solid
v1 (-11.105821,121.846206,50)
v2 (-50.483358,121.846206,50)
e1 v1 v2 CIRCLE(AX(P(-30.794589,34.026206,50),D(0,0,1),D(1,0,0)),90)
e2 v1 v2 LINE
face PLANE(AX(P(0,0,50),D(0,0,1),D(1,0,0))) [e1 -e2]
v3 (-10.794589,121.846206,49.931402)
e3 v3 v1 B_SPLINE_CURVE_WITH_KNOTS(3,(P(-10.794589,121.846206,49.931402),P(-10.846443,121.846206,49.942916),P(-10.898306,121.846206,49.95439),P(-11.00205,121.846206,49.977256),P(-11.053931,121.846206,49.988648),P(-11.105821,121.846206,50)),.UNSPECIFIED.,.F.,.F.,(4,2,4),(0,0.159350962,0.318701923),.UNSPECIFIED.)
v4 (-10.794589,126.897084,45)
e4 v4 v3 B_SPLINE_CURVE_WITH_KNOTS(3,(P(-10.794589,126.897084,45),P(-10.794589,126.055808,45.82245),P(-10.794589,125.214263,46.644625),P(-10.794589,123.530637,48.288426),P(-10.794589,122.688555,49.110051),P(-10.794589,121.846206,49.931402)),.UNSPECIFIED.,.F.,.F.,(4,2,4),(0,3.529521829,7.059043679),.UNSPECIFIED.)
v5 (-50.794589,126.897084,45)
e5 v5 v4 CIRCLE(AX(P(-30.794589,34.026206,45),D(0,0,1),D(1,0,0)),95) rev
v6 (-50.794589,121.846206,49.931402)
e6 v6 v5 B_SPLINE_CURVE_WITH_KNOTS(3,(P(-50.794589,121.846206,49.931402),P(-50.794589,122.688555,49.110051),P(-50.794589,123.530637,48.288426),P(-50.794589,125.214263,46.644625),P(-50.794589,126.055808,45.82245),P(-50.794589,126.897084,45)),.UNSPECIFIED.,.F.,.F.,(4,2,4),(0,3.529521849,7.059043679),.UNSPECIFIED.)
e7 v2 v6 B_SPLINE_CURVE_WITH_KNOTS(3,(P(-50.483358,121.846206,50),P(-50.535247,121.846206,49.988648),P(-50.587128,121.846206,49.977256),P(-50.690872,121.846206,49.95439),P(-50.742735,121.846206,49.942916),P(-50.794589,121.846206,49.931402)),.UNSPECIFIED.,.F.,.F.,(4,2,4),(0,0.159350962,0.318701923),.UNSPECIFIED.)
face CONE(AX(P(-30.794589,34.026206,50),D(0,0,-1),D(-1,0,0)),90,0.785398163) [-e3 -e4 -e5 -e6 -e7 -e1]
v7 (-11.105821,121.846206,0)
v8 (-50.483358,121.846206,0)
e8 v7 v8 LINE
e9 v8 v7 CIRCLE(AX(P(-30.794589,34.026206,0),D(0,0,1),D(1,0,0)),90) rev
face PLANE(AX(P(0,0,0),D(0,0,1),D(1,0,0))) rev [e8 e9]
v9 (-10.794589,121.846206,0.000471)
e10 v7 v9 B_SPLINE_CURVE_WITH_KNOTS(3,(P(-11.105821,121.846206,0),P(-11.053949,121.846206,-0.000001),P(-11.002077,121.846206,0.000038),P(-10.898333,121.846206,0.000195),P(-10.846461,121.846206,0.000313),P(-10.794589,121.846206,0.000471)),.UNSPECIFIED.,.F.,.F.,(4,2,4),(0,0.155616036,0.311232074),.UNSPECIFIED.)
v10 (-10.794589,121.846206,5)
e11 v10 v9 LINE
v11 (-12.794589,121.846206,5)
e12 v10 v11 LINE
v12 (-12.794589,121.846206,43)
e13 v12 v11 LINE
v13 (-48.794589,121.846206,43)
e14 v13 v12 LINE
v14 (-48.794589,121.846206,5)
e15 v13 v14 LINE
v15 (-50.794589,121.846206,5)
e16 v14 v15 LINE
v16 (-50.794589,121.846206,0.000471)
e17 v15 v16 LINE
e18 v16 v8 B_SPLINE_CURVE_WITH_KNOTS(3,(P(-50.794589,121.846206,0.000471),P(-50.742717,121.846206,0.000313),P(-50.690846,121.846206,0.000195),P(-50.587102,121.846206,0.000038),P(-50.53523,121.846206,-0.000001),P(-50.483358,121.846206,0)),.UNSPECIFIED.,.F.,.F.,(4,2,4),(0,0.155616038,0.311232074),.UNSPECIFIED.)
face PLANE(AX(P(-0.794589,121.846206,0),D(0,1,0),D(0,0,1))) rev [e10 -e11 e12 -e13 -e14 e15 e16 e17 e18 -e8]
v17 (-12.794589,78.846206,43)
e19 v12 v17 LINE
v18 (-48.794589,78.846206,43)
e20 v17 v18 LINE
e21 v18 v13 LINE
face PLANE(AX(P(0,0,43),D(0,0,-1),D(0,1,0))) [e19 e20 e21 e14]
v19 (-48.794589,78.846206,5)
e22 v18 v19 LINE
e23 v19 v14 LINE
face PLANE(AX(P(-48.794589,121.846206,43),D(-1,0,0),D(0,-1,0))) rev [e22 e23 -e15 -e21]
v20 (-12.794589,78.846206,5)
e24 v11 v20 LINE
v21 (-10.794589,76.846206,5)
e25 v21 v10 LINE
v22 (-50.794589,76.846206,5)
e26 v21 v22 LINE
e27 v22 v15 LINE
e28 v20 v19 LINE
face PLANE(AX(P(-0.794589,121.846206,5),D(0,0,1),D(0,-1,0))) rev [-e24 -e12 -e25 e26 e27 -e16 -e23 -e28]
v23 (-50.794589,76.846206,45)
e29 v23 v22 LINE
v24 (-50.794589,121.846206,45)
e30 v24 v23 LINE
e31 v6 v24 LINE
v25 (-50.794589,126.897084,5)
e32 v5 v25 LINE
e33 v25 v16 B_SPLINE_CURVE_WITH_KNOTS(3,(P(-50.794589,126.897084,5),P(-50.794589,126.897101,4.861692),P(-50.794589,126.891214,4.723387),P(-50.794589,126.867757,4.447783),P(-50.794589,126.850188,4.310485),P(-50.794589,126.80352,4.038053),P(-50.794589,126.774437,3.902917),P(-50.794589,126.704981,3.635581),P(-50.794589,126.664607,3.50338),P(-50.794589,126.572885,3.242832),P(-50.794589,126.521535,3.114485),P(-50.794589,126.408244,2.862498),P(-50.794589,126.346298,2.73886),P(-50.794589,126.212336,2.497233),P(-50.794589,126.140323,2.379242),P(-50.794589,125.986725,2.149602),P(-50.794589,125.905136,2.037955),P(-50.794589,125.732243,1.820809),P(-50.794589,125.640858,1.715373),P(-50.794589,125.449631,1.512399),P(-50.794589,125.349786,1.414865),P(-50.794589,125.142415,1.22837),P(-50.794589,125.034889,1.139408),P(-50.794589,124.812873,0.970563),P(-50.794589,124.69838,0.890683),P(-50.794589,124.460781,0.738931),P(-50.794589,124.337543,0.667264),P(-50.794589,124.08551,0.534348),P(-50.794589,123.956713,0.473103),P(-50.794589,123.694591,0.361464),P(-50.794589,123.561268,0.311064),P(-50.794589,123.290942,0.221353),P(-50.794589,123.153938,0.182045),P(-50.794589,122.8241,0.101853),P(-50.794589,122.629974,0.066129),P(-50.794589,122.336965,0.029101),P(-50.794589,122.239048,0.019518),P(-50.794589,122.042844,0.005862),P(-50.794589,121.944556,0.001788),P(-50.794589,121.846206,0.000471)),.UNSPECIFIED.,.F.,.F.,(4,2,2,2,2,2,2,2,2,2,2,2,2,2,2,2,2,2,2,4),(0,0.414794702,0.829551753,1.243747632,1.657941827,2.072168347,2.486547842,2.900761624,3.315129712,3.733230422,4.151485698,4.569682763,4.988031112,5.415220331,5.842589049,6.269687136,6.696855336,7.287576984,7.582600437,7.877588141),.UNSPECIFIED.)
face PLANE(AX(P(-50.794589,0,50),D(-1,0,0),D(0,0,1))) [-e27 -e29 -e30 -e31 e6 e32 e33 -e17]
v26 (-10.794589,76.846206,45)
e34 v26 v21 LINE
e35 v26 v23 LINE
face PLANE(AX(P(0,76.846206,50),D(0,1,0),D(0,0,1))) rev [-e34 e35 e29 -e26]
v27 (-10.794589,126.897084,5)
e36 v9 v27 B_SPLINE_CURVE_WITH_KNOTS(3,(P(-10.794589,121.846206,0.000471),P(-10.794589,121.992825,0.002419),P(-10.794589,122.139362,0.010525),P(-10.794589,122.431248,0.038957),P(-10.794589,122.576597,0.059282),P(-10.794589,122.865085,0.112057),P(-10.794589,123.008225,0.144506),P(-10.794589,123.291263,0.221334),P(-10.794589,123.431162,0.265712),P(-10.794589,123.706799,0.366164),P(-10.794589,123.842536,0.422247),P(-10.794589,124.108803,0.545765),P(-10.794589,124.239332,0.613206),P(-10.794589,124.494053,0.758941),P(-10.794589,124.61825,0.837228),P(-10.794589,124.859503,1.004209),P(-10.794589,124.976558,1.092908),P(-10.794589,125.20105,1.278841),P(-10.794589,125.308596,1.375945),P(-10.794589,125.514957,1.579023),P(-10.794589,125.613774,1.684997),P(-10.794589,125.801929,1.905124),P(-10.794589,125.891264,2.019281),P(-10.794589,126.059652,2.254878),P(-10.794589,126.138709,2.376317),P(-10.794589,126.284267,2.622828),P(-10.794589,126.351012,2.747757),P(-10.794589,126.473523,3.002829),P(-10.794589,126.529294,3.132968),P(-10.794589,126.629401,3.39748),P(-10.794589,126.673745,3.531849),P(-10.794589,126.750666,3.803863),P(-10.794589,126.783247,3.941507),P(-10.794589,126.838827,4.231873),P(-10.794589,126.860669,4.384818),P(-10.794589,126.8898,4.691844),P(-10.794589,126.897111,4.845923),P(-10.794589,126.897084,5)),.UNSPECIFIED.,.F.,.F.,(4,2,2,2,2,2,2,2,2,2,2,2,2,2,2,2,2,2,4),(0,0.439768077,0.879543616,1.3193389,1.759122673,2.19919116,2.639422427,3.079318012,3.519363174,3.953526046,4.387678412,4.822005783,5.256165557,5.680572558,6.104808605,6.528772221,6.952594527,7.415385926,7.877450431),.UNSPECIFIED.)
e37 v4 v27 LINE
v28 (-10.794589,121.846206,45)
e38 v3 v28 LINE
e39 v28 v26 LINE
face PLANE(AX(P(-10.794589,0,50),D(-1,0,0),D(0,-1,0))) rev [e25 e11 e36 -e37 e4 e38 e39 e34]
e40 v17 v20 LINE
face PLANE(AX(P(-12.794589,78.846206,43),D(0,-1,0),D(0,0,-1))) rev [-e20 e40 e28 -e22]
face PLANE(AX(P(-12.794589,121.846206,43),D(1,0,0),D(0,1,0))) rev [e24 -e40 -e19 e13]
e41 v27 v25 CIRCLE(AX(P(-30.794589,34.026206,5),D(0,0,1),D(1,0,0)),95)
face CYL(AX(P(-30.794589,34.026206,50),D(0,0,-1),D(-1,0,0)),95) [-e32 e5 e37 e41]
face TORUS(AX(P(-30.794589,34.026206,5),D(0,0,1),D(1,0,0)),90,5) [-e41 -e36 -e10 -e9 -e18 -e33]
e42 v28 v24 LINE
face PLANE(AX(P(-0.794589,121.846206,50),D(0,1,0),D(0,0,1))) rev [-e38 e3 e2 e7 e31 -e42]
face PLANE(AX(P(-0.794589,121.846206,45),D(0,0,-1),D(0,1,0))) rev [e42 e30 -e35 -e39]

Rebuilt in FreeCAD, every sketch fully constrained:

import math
import FreeCAD as App
import Part
import Sketcher

V = App.Vector


def edges_at(feature, points):
    """Names of the edges that pass closest to the given points."""
    edges = feature.Shape.Edges
    near = lambda p: min(range(len(edges)), key=lambda i: edges[i].distToShape(Part.Vertex(*p))[0])
    return sorted({f"Edge{near(p) + 1}" for p in points})


def add_polygon(sketch, points):
    """Adds a closed chain of lines whose ends are joined by coincident constraints."""
    first, n = sketch.GeometryCount, len(points)
    for a, b in zip(points, points[1:] + points[:1]):
        sketch.addGeometry(Part.LineSegment(App.Vector(*a, 0), App.Vector(*b, 0)), False)
    for i in range(n):
        sketch.addConstraint(Sketcher.Constraint("Coincident", first + i, 2, first + (i + 1) % n, 1))

doc = App.newDocument("Part")
body = doc.addObject("PartDesign::Body", "Body")

sketch1 = doc.addObject("Sketcher::SketchObject", "Sketch")
body.addObject(sketch1)
sketch1.AttachmentSupport = (doc.XY_Plane, [""])
sketch1.MapMode = "FlatFace"
sketch1.addGeometry(Part.LineSegment(V(-51, 127, 0), V(-51, 77, 0)), False)
sketch1.addGeometry(Part.LineSegment(V(-51, 77, 0), V(-11, 77, 0)), False)
sketch1.addGeometry(Part.LineSegment(V(-11, 77, 0), V(-11, 127, 0)), False)
sketch1.addGeometry(Part.ArcOfCircle(Part.Circle(V(-31, 34, 0), V(0, 0, 1), 95), math.radians(78), math.radians(102)), False)
sketch1.addConstraint(Sketcher.Constraint("Coincident", 0, 2, 1, 1))
sketch1.addConstraint(Sketcher.Constraint("Coincident", 1, 2, 2, 1))
sketch1.addConstraint(Sketcher.Constraint("Coincident", 2, 2, 3, 1))
sketch1.addConstraint(Sketcher.Constraint("Coincident", 3, 2, 0, 1))
sketch1.addConstraint(Sketcher.Constraint("Vertical", 0))
sketch1.addConstraint(Sketcher.Constraint("Horizontal", 1))
sketch1.addConstraint(Sketcher.Constraint("Vertical", 2))
sketch1.addConstraint(Sketcher.Constraint("Horizontal", 2, 2, 3, 2))
sketch1.addConstraint(Sketcher.Constraint("Radius", 3, 95.0))
sketch1.addConstraint(Sketcher.Constraint("DistanceX", 1, 1, 1, 2, 40.0))
sketch1.addConstraint(Sketcher.Constraint("DistanceY", 3, 3, 0, 2, 42.82))
sketch1.addConstraint(Sketcher.Constraint("DistanceX", 3, 3, -1, 1, 30.794589))
sketch1.addConstraint(Sketcher.Constraint("DistanceY", -1, 1, 3, 3, 34.026206))
pad1 = doc.addObject("PartDesign::Pad", "Pad")
body.addObject(pad1)
pad1.Profile = sketch1
pad1.Length = 50

sketch2 = doc.addObject("Sketcher::SketchObject", "Sketch001")
body.addObject(sketch2)
sketch2.AttachmentSupport = (doc.YZ_Plane, [""])
sketch2.MapMode = "FlatFace"
sketch2.AttachmentOffset = App.Placement(V(0, 0, -50.794589), App.Rotation())
add_polygon(sketch2, [(122, 0), (77, 0), (77, 5), (122, 5)])
add_polygon(sketch2, [(122, 45), (77, 45), (77, 50), (122, 50)])
sketch2.addConstraint(Sketcher.Constraint("Horizontal", 0))
sketch2.addConstraint(Sketcher.Constraint("Vertical", 1))
sketch2.addConstraint(Sketcher.Constraint("Horizontal", 2))
sketch2.addConstraint(Sketcher.Constraint("Vertical", 3))
sketch2.addConstraint(Sketcher.Constraint("Horizontal", 4))
sketch2.addConstraint(Sketcher.Constraint("Vertical", 5))
sketch2.addConstraint(Sketcher.Constraint("Horizontal", 6))
sketch2.addConstraint(Sketcher.Constraint("Vertical", 7))
sketch2.addConstraint(Sketcher.Constraint("PointOnObject", 0, 2, -1))
sketch2.addConstraint(Sketcher.Constraint("Vertical", 1, 2, 4, 2))
sketch2.addConstraint(Sketcher.Constraint("Vertical", 3, 2, 6, 2))
sketch2.addConstraint(Sketcher.Constraint("Equal", 3, 5))
sketch2.addConstraint(Sketcher.Constraint("DistanceX", 0, 2, 0, 1, 45.0))
sketch2.addConstraint(Sketcher.Constraint("DistanceY", 1, 1, 1, 2, 5.0))
sketch2.addConstraint(Sketcher.Constraint("DistanceY", -1, 1, 4, 2, 45.0))
sketch2.addConstraint(Sketcher.Constraint("DistanceX", -1, 1, 0, 2, 76.846206))
pocket1 = doc.addObject("PartDesign::Pocket", "Pocket")
body.addObject(pocket1)
pocket1.Profile = sketch2
pocket1.Length = 50
pocket1.Reversed = True

sketch3 = doc.addObject("Sketcher::SketchObject", "Sketch002")
body.addObject(sketch3)
sketch3.AttachmentSupport = (doc.XY_Plane, [""])
sketch3.MapMode = "FlatFace"
sketch3.AttachmentOffset = App.Placement(V(0, 0, 5), App.Rotation())
add_polygon(sketch3, [(-13, 122), (-13, 79), (-49, 79), (-49, 122)])
sketch3.addConstraint(Sketcher.Constraint("Vertical", 0))
sketch3.addConstraint(Sketcher.Constraint("Horizontal", 1))
sketch3.addConstraint(Sketcher.Constraint("Vertical", 2))
sketch3.addConstraint(Sketcher.Constraint("Horizontal", 3))
sketch3.addConstraint(Sketcher.Constraint("DistanceX", 1, 2, 1, 1, 36.0))
sketch3.addConstraint(Sketcher.Constraint("DistanceY", 0, 2, 0, 1, 43.0))
sketch3.addConstraint(Sketcher.Constraint("DistanceX", 0, 2, -1, 1, 12.794589))
sketch3.addConstraint(Sketcher.Constraint("DistanceY", -1, 1, 0, 2, 78.846206))
pocket2 = doc.addObject("PartDesign::Pocket", "Pocket001")
body.addObject(pocket2)
pocket2.Profile = sketch3
pocket2.Length = 38
pocket2.Reversed = True
doc.recompute()

fillet = doc.addObject("PartDesign::Fillet", "Fillet")
body.addObject(fillet)
fillet.Base = (pocket2, edges_at(pocket2, [(-30.795, 129.026, 0)]))
fillet.Radius = 5
doc.recompute()

chamfer = doc.addObject("PartDesign::Chamfer", "Chamfer")
body.addObject(chamfer)
chamfer.Base = (fillet, edges_at(fillet, [(-30.795, 129.026, 50)]))
chamfer.Size = 5

doc.recompute()
